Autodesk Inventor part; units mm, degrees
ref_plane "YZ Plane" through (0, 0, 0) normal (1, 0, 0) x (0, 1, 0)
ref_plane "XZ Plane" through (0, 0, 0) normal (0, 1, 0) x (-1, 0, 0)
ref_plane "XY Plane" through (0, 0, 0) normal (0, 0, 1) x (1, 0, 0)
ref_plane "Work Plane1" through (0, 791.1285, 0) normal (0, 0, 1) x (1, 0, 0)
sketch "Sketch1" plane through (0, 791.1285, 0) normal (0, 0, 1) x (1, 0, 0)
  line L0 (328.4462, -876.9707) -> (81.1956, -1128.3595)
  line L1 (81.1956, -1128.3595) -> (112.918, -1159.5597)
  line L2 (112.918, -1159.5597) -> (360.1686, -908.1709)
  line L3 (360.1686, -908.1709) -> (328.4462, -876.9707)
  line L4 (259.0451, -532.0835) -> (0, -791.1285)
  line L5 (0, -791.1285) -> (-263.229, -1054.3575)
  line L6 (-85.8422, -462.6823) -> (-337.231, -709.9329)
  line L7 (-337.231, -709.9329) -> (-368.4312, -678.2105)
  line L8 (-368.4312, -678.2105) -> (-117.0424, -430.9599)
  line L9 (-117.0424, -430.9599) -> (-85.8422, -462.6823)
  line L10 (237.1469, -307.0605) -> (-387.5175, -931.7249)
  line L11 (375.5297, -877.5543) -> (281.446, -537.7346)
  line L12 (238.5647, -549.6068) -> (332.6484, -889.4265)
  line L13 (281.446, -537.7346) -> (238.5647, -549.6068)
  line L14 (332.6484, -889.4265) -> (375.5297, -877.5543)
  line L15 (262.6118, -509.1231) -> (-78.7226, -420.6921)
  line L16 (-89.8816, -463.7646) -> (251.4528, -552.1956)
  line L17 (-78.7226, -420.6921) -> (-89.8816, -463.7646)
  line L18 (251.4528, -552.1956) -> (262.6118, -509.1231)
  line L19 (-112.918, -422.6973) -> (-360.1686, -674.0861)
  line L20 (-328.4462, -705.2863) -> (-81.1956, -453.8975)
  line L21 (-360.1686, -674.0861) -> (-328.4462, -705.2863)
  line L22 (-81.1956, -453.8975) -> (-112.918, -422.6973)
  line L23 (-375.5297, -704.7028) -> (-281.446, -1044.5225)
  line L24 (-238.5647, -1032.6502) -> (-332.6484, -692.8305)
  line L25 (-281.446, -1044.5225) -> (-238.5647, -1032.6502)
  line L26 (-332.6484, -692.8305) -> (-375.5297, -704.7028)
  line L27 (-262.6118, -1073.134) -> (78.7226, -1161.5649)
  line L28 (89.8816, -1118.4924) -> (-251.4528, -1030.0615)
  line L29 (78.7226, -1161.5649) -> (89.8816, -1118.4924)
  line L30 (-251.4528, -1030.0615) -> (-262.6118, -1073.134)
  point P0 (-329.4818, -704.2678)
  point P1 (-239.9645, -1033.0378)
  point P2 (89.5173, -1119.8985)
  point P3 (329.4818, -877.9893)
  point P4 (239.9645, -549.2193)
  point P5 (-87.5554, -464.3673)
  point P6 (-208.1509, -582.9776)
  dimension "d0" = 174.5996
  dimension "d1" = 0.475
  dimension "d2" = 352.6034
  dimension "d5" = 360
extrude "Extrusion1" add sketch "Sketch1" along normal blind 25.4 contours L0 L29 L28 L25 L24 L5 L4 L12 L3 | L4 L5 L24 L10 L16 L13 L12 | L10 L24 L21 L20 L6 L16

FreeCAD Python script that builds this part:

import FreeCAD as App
import Part
import Sketcher
Q = App.Units.Quantity


def add_polygon(sketch, points):
    """Adds a closed chain of lines whose ends are joined by coincident constraints."""
    first, n = sketch.GeometryCount, len(points)
    for a, b in zip(points, points[1:] + points[:1]):
        sketch.addGeometry(Part.LineSegment(App.Vector(*a, 0), App.Vector(*b, 0)), False)
    for i in range(n):
        sketch.addConstraint(Sketcher.Constraint("Coincident", first + i, 2, first + (i + 1) % n, 1))

doc = App.newDocument("Part")
body = doc.addObject("PartDesign::Body", "Body")

# Sketch on XY plane
sketch1 = body.newObject("Sketcher::SketchObject", "Sketch")
sketch1.AttachmentSupport = (doc.getObject("XY_Plane"), [""])
sketch1.MapMode = "FlatFace"
add_polygon(sketch1, [(89.517313, -328.770008), (328.4462, -85.8422), (329.481859, -86.86081), (238.5647, 241.5217), (239.964449, 241.909237), (-87.555368, 326.761233), (-208.150883, 208.150883), (-328.4462, 85.8422), (-329.481859, 86.86081), (-238.5647, -241.5217), (-239.964624, -241.909289), (89.8816, -327.3639)])  # lines 0-11
sketch1.addConstraint(Sketcher.Constraint("Symmetric", 0, 2, 6, 2, -1, 1))
sketch1.addConstraint(Sketcher.Constraint("Symmetric", 1, 2, 7, 2, -1, 1))
sketch1.addConstraint(Sketcher.Constraint("Symmetric", 2, 2, 8, 2, -1, 1))
sketch1.addConstraint(Sketcher.Constraint("Symmetric", 3, 2, 9, 2, -1, 1))
sketch1.addConstraint(Sketcher.Constraint("Perpendicular", 0, 1))
sketch1.addConstraint(Sketcher.Constraint("Perpendicular", 2, 3))
sketch1.addConstraint(Sketcher.Constraint("Perpendicular", 1, 6))
sketch1.addConstraint(Sketcher.Constraint("Parallel", 4, 10))
sketch1.addConstraint(Sketcher.Constraint("Perpendicular", 10, 11))
sketch1.addConstraint(Sketcher.Constraint("Equal", 0, 2))
sketch1.addConstraint(Sketcher.Constraint("Equal", 7, 9))
sketch1.addConstraint(Sketcher.Constraint("Equal", 8, 10))
sketch1.addConstraint(Sketcher.Constraint("Equal", 9, 11))
sketch1.addConstraint(Sketcher.Constraint("DistanceY", 6, 2, 4, 2, Q("9.485 in")))
sketch1.addConstraint(Sketcher.Constraint("DistanceY", 7, 2, 2, 2, Q("6.089 in")))
sketch1.addConstraint(Sketcher.Constraint("Distance", 0, Q("13.4148 in")))
sketch1.addConstraint(Sketcher.Constraint("Distance", 1, Q("0.0572 in")))
sketch1.addConstraint(Sketcher.Constraint("Distance", 4, Q("13.3202 in")))
sketch1.addConstraint(Sketcher.Constraint("DistanceX", -1, 1, 2, 2, Q("9.3923 in")))
sketch1.addConstraint(Sketcher.Constraint("DistanceY", 5, 2, 4, 2, Q("4.6697 in")))
pad1 = body.newObject("PartDesign::Pad", "Pad")
pad1.Profile = sketch1
pad1.Length = Q("1 in")

doc.recompute()
